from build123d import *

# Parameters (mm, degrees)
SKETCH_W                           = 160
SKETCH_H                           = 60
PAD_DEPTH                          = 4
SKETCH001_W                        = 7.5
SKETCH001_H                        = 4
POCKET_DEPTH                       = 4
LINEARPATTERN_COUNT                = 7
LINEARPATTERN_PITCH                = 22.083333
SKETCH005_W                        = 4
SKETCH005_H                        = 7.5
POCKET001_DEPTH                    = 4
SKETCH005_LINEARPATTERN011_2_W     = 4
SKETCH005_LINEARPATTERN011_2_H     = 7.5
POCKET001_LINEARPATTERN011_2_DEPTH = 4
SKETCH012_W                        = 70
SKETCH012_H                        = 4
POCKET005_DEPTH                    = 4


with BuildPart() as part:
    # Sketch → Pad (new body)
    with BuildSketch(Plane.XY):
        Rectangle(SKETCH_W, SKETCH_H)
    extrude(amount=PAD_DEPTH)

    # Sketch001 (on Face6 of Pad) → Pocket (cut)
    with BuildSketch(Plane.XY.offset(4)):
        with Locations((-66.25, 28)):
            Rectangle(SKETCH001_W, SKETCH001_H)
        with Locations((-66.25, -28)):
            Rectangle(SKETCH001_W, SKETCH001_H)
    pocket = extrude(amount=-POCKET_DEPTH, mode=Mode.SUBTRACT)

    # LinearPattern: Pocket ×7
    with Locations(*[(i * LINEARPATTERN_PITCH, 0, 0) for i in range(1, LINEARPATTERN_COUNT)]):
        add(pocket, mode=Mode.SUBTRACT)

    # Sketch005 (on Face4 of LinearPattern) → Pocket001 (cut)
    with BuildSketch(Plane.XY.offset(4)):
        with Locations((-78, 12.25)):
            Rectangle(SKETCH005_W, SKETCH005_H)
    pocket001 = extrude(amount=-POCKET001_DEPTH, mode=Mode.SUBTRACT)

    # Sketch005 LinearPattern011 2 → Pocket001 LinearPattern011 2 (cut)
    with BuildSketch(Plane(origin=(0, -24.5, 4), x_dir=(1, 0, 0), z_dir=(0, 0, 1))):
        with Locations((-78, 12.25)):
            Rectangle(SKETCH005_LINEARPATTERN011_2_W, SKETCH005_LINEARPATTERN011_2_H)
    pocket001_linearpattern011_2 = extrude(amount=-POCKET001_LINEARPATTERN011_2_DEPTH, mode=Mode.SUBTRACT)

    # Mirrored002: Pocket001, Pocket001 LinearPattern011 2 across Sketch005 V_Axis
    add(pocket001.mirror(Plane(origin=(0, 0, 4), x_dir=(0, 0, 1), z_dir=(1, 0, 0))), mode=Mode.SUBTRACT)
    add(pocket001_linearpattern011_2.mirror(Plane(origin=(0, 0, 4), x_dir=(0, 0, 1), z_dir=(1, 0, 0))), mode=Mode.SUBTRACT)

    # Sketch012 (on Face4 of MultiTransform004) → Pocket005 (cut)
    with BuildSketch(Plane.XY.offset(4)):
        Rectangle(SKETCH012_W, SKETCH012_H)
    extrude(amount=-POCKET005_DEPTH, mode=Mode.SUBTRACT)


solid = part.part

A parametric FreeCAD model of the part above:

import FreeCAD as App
import Part
import Sketcher

V = App.Vector
Q = App.Units.Quantity

doc = App.newDocument("Part")
body = doc.addObject("PartDesign::Body", "Body")

sketch1 = doc.addObject("Sketcher::SketchObject", "Sketch")
body.addObject(sketch1)
sketch1.AttachmentSupport = (doc.XY_Plane, [""])
sketch1.MapMode = "FlatFace"
sketch1.addGeometry(Part.LineSegment(V(-80, 30, 0), V(-80, -30, 0)), False)
sketch1.addGeometry(Part.LineSegment(V(-80, -30, 0), V(80, -30, 0)), False)
sketch1.addGeometry(Part.LineSegment(V(80, -30, 0), V(80, 30, 0)), False)
sketch1.addGeometry(Part.LineSegment(V(80, 30, 0), V(-80, 30, 0)), False)
sketch1.addConstraint(Sketcher.Constraint("Coincident", 0, 2, 1, 1))
sketch1.addConstraint(Sketcher.Constraint("Coincident", 1, 2, 2, 1))
sketch1.addConstraint(Sketcher.Constraint("Coincident", 2, 2, 3, 1))
sketch1.addConstraint(Sketcher.Constraint("Coincident", 3, 2, 0, 1))
sketch1.addConstraint(Sketcher.Constraint("Vertical", 0))
sketch1.addConstraint(Sketcher.Constraint("Horizontal", 1))
sketch1.addConstraint(Sketcher.Constraint("Vertical", 2))
sketch1.addConstraint(Sketcher.Constraint("Horizontal", 3))
sketch1.addConstraint(Sketcher.Constraint("Symmetric", 0, 2, 2, 2, -1, 1))
sketch1.addConstraint(Sketcher.Constraint("DistanceX", 1, 1, 1, 2, Q("160 mm")))
sketch1.addConstraint(Sketcher.Constraint("DistanceY", 0, 2, 0, 1, Q("60 mm")))
pad1 = doc.addObject("PartDesign::Pad", "Pad")
body.addObject(pad1)
pad1.Profile = sketch1
pad1.Length = 4

sketch2 = doc.addObject("Sketcher::SketchObject", "Sketch001")
body.addObject(sketch2)
sketch2.AttachmentSupport = (doc.XY_Plane, [""])
sketch2.MapMode = "FlatFace"
sketch2.AttachmentOffset = App.Placement(V(0, 0, 4), App.Rotation())
sketch2.addGeometry(Part.LineSegment(V(-70, 30, 0), V(-70, 26, 0)), False)
sketch2.addGeometry(Part.LineSegment(V(-70, 26, 0), V(-62.5, 26, 0)), False)
sketch2.addGeometry(Part.LineSegment(V(-62.5, 26, 0), V(-62.5, 30, 0)), False)
sketch2.addGeometry(Part.LineSegment(V(-62.5, 30, 0), V(-70, 30, 0)), False)
sketch2.addGeometry(Part.LineSegment(V(-70, -26, 0), V(-70, -30, 0)), False)
sketch2.addGeometry(Part.LineSegment(V(-70, -30, 0), V(-62.5, -30, 0)), False)
sketch2.addGeometry(Part.LineSegment(V(-62.5, -30, 0), V(-62.5, -26, 0)), False)
sketch2.addGeometry(Part.LineSegment(V(-62.5, -26, 0), V(-70, -26, 0)), False)
sketch2.addConstraint(Sketcher.Constraint("Coincident", 0, 2, 1, 1))
sketch2.addConstraint(Sketcher.Constraint("Coincident", 1, 2, 2, 1))
sketch2.addConstraint(Sketcher.Constraint("Coincident", 2, 2, 3, 1))
sketch2.addConstraint(Sketcher.Constraint("Coincident", 3, 2, 0, 1))
sketch2.addConstraint(Sketcher.Constraint("Coincident", 4, 2, 5, 1))
sketch2.addConstraint(Sketcher.Constraint("Coincident", 5, 2, 6, 1))
sketch2.addConstraint(Sketcher.Constraint("Coincident", 6, 2, 7, 1))
sketch2.addConstraint(Sketcher.Constraint("Coincident", 7, 2, 4, 1))
sketch2.addConstraint(Sketcher.Constraint("Vertical", 0))
sketch2.addConstraint(Sketcher.Constraint("Horizontal", 1))
sketch2.addConstraint(Sketcher.Constraint("Vertical", 2))
sketch2.addConstraint(Sketcher.Constraint("Horizontal", 3))
sketch2.addConstraint(Sketcher.Constraint("Vertical", 4))
sketch2.addConstraint(Sketcher.Constraint("Horizontal", 5))
sketch2.addConstraint(Sketcher.Constraint("Vertical", 6))
sketch2.addConstraint(Sketcher.Constraint("Horizontal", 7))
sketch2.addConstraint(Sketcher.Constraint("Symmetric", 3, 2, 4, 2, -1))
sketch2.addConstraint(Sketcher.Constraint("Symmetric", 1, 2, 6, 2, -1))
sketch2.addConstraint(Sketcher.Constraint("DistanceY", 0, 2, 0, 1, Q("4 mm")))
sketch2.addConstraint(Sketcher.Constraint("DistanceX", 1, 1, 1, 2, Q("7.5 mm")))
sketch2.addConstraint(Sketcher.Constraint("DistanceX", 0, 2, -1, 1, Q("70 mm")))
sketch2.addConstraint(Sketcher.Constraint("DistanceY", -1, 1, 0, 2, Q("26 mm")))
pocket1 = doc.addObject("PartDesign::Pocket", "Pocket")
body.addObject(pocket1)
pocket1.Profile = sketch2
pocket1.Length = 4
doc.recompute()

linearpattern = doc.addObject("PartDesign::LinearPattern", "LinearPattern")
body.addObject(linearpattern)
linearpattern.Originals = [pocket1]
linearpattern.Direction = (doc.X_Axis, [""])
linearpattern.Mode = "offset"
linearpattern.Offset = 22.083333
linearpattern.Occurrences = 7
body.Tip = linearpattern

sketch3 = doc.addObject("Sketcher::SketchObject", "Sketch002")
body.addObject(sketch3)
sketch3.AttachmentSupport = (doc.XY_Plane, [""])
sketch3.MapMode = "FlatFace"
sketch3.AttachmentOffset = App.Placement(V(0, 0, 4), App.Rotation())
sketch3.addGeometry(Part.LineSegment(V(-80, 16, 0), V(-80, 8.5, 0)), False)
sketch3.addGeometry(Part.LineSegment(V(-80, 8.5, 0), V(-76, 8.5, 0)), False)
sketch3.addGeometry(Part.LineSegment(V(-76, 8.5, 0), V(-76, 16, 0)), False)
sketch3.addGeometry(Part.LineSegment(V(-76, 16, 0), V(-80, 16, 0)), False)
sketch3.addConstraint(Sketcher.Constraint("Coincident", 0, 2, 1, 1))
sketch3.addConstraint(Sketcher.Constraint("Coincident", 1, 2, 2, 1))
sketch3.addConstraint(Sketcher.Constraint("Coincident", 2, 2, 3, 1))
sketch3.addConstraint(Sketcher.Constraint("Coincident", 3, 2, 0, 1))
sketch3.addConstraint(Sketcher.Constraint("Vertical", 0))
sketch3.addConstraint(Sketcher.Constraint("Horizontal", 1))
sketch3.addConstraint(Sketcher.Constraint("Vertical", 2))
sketch3.addConstraint(Sketcher.Constraint("Horizontal", 3))
sketch3.addConstraint(Sketcher.Constraint("DistanceX", 1, 1, 1, 2, Q("4 mm")))
sketch3.addConstraint(Sketcher.Constraint("DistanceY", 0, 2, 0, 1, Q("7.5 mm")))
sketch3.addConstraint(Sketcher.Constraint("DistanceX", 0, 2, -1, 1, Q("80 mm")))
sketch3.addConstraint(Sketcher.Constraint("DistanceY", -1, 1, 2, 2, Q("16 mm")))
pocket2 = doc.addObject("PartDesign::Pocket", "Pocket001")
body.addObject(pocket2)
pocket2.Profile = sketch3
pocket2.Length = 4

sketch4 = doc.addObject("Sketcher::SketchObject", "Sketch003")
body.addObject(sketch4)
sketch4.AttachmentSupport = (doc.XY_Plane, [""])
sketch4.MapMode = "FlatFace"
sketch4.AttachmentOffset = App.Placement(V(0, 0, 4), App.Rotation())
sketch4.addGeometry(Part.LineSegment(V(-80, -8.5, 0), V(-80, -16, 0)), False)
sketch4.addGeometry(Part.LineSegment(V(-80, -16, 0), V(-76, -16, 0)), False)
sketch4.addGeometry(Part.LineSegment(V(-76, -16, 0), V(-76, -8.5, 0)), False)
sketch4.addGeometry(Part.LineSegment(V(-76, -8.5, 0), V(-80, -8.5, 0)), False)
sketch4.addConstraint(Sketcher.Constraint("Coincident", 0, 2, 1, 1))
sketch4.addConstraint(Sketcher.Constraint("Coincident", 1, 2, 2, 1))
sketch4.addConstraint(Sketcher.Constraint("Coincident", 2, 2, 3, 1))
sketch4.addConstraint(Sketcher.Constraint("Coincident", 3, 2, 0, 1))
sketch4.addConstraint(Sketcher.Constraint("Vertical", 0))
sketch4.addConstraint(Sketcher.Constraint("Horizontal", 1))
sketch4.addConstraint(Sketcher.Constraint("Vertical", 2))
sketch4.addConstraint(Sketcher.Constraint("Horizontal", 3))
sketch4.addConstraint(Sketcher.Constraint("DistanceX", 1, 1, 1, 2, Q("4 mm")))
sketch4.addConstraint(Sketcher.Constraint("DistanceY", 0, 2, 0, 1, Q("7.5 mm")))
sketch4.addConstraint(Sketcher.Constraint("DistanceX", 0, 2, -1, 1, Q("80 mm")))
sketch4.addConstraint(Sketcher.Constraint("DistanceY", 0, 2, -1, 1, Q("16 mm")))
pocket3 = doc.addObject("PartDesign::Pocket", "Pocket002")
body.addObject(pocket3)
pocket3.Profile = sketch4
pocket3.Length = 4
doc.recompute()

mirrored = doc.addObject("PartDesign::Mirrored", "Mirrored")
body.addObject(mirrored)
mirrored.Originals = [pocket2, pocket3]
mirrored.MirrorPlane = (doc.YZ_Plane, [""])
body.Tip = mirrored

sketch5 = doc.addObject("Sketcher::SketchObject", "Sketch004")
body.addObject(sketch5)
sketch5.AttachmentSupport = (doc.XY_Plane, [""])
sketch5.MapMode = "FlatFace"
sketch5.AttachmentOffset = App.Placement(V(0, 0, 4), App.Rotation())
sketch5.addGeometry(Part.LineSegment(V(-35, 2, 0), V(-35, -2, 0)), False)
sketch5.addGeometry(Part.LineSegment(V(-35, -2, 0), V(35, -2, 0)), False)
sketch5.addGeometry(Part.LineSegment(V(35, -2, 0), V(35, 2, 0)), False)
sketch5.addGeometry(Part.LineSegment(V(35, 2, 0), V(-35, 2, 0)), False)
sketch5.addConstraint(Sketcher.Constraint("Coincident", 0, 2, 1, 1))
sketch5.addConstraint(Sketcher.Constraint("Coincident", 1, 2, 2, 1))
sketch5.addConstraint(Sketcher.Constraint("Coincident", 2, 2, 3, 1))
sketch5.addConstraint(Sketcher.Constraint("Coincident", 3, 2, 0, 1))
sketch5.addConstraint(Sketcher.Constraint("Vertical", 0))
sketch5.addConstraint(Sketcher.Constraint("Horizontal", 1))
sketch5.addConstraint(Sketcher.Constraint("Vertical", 2))
sketch5.addConstraint(Sketcher.Constraint("Horizontal", 3))
sketch5.addConstraint(Sketcher.Constraint("Symmetric", 0, 2, 2, 2, -1, 1))
sketch5.addConstraint(Sketcher.Constraint("DistanceX", 1, 1, 1, 2, Q("70 mm")))
sketch5.addConstraint(Sketcher.Constraint("DistanceY", 0, 2, 0, 1, Q("4 mm")))
pocket4 = doc.addObject("PartDesign::Pocket", "Pocket003")
body.addObject(pocket4)
pocket4.Profile = sketch5
pocket4.Length = 4

doc.recompute()
